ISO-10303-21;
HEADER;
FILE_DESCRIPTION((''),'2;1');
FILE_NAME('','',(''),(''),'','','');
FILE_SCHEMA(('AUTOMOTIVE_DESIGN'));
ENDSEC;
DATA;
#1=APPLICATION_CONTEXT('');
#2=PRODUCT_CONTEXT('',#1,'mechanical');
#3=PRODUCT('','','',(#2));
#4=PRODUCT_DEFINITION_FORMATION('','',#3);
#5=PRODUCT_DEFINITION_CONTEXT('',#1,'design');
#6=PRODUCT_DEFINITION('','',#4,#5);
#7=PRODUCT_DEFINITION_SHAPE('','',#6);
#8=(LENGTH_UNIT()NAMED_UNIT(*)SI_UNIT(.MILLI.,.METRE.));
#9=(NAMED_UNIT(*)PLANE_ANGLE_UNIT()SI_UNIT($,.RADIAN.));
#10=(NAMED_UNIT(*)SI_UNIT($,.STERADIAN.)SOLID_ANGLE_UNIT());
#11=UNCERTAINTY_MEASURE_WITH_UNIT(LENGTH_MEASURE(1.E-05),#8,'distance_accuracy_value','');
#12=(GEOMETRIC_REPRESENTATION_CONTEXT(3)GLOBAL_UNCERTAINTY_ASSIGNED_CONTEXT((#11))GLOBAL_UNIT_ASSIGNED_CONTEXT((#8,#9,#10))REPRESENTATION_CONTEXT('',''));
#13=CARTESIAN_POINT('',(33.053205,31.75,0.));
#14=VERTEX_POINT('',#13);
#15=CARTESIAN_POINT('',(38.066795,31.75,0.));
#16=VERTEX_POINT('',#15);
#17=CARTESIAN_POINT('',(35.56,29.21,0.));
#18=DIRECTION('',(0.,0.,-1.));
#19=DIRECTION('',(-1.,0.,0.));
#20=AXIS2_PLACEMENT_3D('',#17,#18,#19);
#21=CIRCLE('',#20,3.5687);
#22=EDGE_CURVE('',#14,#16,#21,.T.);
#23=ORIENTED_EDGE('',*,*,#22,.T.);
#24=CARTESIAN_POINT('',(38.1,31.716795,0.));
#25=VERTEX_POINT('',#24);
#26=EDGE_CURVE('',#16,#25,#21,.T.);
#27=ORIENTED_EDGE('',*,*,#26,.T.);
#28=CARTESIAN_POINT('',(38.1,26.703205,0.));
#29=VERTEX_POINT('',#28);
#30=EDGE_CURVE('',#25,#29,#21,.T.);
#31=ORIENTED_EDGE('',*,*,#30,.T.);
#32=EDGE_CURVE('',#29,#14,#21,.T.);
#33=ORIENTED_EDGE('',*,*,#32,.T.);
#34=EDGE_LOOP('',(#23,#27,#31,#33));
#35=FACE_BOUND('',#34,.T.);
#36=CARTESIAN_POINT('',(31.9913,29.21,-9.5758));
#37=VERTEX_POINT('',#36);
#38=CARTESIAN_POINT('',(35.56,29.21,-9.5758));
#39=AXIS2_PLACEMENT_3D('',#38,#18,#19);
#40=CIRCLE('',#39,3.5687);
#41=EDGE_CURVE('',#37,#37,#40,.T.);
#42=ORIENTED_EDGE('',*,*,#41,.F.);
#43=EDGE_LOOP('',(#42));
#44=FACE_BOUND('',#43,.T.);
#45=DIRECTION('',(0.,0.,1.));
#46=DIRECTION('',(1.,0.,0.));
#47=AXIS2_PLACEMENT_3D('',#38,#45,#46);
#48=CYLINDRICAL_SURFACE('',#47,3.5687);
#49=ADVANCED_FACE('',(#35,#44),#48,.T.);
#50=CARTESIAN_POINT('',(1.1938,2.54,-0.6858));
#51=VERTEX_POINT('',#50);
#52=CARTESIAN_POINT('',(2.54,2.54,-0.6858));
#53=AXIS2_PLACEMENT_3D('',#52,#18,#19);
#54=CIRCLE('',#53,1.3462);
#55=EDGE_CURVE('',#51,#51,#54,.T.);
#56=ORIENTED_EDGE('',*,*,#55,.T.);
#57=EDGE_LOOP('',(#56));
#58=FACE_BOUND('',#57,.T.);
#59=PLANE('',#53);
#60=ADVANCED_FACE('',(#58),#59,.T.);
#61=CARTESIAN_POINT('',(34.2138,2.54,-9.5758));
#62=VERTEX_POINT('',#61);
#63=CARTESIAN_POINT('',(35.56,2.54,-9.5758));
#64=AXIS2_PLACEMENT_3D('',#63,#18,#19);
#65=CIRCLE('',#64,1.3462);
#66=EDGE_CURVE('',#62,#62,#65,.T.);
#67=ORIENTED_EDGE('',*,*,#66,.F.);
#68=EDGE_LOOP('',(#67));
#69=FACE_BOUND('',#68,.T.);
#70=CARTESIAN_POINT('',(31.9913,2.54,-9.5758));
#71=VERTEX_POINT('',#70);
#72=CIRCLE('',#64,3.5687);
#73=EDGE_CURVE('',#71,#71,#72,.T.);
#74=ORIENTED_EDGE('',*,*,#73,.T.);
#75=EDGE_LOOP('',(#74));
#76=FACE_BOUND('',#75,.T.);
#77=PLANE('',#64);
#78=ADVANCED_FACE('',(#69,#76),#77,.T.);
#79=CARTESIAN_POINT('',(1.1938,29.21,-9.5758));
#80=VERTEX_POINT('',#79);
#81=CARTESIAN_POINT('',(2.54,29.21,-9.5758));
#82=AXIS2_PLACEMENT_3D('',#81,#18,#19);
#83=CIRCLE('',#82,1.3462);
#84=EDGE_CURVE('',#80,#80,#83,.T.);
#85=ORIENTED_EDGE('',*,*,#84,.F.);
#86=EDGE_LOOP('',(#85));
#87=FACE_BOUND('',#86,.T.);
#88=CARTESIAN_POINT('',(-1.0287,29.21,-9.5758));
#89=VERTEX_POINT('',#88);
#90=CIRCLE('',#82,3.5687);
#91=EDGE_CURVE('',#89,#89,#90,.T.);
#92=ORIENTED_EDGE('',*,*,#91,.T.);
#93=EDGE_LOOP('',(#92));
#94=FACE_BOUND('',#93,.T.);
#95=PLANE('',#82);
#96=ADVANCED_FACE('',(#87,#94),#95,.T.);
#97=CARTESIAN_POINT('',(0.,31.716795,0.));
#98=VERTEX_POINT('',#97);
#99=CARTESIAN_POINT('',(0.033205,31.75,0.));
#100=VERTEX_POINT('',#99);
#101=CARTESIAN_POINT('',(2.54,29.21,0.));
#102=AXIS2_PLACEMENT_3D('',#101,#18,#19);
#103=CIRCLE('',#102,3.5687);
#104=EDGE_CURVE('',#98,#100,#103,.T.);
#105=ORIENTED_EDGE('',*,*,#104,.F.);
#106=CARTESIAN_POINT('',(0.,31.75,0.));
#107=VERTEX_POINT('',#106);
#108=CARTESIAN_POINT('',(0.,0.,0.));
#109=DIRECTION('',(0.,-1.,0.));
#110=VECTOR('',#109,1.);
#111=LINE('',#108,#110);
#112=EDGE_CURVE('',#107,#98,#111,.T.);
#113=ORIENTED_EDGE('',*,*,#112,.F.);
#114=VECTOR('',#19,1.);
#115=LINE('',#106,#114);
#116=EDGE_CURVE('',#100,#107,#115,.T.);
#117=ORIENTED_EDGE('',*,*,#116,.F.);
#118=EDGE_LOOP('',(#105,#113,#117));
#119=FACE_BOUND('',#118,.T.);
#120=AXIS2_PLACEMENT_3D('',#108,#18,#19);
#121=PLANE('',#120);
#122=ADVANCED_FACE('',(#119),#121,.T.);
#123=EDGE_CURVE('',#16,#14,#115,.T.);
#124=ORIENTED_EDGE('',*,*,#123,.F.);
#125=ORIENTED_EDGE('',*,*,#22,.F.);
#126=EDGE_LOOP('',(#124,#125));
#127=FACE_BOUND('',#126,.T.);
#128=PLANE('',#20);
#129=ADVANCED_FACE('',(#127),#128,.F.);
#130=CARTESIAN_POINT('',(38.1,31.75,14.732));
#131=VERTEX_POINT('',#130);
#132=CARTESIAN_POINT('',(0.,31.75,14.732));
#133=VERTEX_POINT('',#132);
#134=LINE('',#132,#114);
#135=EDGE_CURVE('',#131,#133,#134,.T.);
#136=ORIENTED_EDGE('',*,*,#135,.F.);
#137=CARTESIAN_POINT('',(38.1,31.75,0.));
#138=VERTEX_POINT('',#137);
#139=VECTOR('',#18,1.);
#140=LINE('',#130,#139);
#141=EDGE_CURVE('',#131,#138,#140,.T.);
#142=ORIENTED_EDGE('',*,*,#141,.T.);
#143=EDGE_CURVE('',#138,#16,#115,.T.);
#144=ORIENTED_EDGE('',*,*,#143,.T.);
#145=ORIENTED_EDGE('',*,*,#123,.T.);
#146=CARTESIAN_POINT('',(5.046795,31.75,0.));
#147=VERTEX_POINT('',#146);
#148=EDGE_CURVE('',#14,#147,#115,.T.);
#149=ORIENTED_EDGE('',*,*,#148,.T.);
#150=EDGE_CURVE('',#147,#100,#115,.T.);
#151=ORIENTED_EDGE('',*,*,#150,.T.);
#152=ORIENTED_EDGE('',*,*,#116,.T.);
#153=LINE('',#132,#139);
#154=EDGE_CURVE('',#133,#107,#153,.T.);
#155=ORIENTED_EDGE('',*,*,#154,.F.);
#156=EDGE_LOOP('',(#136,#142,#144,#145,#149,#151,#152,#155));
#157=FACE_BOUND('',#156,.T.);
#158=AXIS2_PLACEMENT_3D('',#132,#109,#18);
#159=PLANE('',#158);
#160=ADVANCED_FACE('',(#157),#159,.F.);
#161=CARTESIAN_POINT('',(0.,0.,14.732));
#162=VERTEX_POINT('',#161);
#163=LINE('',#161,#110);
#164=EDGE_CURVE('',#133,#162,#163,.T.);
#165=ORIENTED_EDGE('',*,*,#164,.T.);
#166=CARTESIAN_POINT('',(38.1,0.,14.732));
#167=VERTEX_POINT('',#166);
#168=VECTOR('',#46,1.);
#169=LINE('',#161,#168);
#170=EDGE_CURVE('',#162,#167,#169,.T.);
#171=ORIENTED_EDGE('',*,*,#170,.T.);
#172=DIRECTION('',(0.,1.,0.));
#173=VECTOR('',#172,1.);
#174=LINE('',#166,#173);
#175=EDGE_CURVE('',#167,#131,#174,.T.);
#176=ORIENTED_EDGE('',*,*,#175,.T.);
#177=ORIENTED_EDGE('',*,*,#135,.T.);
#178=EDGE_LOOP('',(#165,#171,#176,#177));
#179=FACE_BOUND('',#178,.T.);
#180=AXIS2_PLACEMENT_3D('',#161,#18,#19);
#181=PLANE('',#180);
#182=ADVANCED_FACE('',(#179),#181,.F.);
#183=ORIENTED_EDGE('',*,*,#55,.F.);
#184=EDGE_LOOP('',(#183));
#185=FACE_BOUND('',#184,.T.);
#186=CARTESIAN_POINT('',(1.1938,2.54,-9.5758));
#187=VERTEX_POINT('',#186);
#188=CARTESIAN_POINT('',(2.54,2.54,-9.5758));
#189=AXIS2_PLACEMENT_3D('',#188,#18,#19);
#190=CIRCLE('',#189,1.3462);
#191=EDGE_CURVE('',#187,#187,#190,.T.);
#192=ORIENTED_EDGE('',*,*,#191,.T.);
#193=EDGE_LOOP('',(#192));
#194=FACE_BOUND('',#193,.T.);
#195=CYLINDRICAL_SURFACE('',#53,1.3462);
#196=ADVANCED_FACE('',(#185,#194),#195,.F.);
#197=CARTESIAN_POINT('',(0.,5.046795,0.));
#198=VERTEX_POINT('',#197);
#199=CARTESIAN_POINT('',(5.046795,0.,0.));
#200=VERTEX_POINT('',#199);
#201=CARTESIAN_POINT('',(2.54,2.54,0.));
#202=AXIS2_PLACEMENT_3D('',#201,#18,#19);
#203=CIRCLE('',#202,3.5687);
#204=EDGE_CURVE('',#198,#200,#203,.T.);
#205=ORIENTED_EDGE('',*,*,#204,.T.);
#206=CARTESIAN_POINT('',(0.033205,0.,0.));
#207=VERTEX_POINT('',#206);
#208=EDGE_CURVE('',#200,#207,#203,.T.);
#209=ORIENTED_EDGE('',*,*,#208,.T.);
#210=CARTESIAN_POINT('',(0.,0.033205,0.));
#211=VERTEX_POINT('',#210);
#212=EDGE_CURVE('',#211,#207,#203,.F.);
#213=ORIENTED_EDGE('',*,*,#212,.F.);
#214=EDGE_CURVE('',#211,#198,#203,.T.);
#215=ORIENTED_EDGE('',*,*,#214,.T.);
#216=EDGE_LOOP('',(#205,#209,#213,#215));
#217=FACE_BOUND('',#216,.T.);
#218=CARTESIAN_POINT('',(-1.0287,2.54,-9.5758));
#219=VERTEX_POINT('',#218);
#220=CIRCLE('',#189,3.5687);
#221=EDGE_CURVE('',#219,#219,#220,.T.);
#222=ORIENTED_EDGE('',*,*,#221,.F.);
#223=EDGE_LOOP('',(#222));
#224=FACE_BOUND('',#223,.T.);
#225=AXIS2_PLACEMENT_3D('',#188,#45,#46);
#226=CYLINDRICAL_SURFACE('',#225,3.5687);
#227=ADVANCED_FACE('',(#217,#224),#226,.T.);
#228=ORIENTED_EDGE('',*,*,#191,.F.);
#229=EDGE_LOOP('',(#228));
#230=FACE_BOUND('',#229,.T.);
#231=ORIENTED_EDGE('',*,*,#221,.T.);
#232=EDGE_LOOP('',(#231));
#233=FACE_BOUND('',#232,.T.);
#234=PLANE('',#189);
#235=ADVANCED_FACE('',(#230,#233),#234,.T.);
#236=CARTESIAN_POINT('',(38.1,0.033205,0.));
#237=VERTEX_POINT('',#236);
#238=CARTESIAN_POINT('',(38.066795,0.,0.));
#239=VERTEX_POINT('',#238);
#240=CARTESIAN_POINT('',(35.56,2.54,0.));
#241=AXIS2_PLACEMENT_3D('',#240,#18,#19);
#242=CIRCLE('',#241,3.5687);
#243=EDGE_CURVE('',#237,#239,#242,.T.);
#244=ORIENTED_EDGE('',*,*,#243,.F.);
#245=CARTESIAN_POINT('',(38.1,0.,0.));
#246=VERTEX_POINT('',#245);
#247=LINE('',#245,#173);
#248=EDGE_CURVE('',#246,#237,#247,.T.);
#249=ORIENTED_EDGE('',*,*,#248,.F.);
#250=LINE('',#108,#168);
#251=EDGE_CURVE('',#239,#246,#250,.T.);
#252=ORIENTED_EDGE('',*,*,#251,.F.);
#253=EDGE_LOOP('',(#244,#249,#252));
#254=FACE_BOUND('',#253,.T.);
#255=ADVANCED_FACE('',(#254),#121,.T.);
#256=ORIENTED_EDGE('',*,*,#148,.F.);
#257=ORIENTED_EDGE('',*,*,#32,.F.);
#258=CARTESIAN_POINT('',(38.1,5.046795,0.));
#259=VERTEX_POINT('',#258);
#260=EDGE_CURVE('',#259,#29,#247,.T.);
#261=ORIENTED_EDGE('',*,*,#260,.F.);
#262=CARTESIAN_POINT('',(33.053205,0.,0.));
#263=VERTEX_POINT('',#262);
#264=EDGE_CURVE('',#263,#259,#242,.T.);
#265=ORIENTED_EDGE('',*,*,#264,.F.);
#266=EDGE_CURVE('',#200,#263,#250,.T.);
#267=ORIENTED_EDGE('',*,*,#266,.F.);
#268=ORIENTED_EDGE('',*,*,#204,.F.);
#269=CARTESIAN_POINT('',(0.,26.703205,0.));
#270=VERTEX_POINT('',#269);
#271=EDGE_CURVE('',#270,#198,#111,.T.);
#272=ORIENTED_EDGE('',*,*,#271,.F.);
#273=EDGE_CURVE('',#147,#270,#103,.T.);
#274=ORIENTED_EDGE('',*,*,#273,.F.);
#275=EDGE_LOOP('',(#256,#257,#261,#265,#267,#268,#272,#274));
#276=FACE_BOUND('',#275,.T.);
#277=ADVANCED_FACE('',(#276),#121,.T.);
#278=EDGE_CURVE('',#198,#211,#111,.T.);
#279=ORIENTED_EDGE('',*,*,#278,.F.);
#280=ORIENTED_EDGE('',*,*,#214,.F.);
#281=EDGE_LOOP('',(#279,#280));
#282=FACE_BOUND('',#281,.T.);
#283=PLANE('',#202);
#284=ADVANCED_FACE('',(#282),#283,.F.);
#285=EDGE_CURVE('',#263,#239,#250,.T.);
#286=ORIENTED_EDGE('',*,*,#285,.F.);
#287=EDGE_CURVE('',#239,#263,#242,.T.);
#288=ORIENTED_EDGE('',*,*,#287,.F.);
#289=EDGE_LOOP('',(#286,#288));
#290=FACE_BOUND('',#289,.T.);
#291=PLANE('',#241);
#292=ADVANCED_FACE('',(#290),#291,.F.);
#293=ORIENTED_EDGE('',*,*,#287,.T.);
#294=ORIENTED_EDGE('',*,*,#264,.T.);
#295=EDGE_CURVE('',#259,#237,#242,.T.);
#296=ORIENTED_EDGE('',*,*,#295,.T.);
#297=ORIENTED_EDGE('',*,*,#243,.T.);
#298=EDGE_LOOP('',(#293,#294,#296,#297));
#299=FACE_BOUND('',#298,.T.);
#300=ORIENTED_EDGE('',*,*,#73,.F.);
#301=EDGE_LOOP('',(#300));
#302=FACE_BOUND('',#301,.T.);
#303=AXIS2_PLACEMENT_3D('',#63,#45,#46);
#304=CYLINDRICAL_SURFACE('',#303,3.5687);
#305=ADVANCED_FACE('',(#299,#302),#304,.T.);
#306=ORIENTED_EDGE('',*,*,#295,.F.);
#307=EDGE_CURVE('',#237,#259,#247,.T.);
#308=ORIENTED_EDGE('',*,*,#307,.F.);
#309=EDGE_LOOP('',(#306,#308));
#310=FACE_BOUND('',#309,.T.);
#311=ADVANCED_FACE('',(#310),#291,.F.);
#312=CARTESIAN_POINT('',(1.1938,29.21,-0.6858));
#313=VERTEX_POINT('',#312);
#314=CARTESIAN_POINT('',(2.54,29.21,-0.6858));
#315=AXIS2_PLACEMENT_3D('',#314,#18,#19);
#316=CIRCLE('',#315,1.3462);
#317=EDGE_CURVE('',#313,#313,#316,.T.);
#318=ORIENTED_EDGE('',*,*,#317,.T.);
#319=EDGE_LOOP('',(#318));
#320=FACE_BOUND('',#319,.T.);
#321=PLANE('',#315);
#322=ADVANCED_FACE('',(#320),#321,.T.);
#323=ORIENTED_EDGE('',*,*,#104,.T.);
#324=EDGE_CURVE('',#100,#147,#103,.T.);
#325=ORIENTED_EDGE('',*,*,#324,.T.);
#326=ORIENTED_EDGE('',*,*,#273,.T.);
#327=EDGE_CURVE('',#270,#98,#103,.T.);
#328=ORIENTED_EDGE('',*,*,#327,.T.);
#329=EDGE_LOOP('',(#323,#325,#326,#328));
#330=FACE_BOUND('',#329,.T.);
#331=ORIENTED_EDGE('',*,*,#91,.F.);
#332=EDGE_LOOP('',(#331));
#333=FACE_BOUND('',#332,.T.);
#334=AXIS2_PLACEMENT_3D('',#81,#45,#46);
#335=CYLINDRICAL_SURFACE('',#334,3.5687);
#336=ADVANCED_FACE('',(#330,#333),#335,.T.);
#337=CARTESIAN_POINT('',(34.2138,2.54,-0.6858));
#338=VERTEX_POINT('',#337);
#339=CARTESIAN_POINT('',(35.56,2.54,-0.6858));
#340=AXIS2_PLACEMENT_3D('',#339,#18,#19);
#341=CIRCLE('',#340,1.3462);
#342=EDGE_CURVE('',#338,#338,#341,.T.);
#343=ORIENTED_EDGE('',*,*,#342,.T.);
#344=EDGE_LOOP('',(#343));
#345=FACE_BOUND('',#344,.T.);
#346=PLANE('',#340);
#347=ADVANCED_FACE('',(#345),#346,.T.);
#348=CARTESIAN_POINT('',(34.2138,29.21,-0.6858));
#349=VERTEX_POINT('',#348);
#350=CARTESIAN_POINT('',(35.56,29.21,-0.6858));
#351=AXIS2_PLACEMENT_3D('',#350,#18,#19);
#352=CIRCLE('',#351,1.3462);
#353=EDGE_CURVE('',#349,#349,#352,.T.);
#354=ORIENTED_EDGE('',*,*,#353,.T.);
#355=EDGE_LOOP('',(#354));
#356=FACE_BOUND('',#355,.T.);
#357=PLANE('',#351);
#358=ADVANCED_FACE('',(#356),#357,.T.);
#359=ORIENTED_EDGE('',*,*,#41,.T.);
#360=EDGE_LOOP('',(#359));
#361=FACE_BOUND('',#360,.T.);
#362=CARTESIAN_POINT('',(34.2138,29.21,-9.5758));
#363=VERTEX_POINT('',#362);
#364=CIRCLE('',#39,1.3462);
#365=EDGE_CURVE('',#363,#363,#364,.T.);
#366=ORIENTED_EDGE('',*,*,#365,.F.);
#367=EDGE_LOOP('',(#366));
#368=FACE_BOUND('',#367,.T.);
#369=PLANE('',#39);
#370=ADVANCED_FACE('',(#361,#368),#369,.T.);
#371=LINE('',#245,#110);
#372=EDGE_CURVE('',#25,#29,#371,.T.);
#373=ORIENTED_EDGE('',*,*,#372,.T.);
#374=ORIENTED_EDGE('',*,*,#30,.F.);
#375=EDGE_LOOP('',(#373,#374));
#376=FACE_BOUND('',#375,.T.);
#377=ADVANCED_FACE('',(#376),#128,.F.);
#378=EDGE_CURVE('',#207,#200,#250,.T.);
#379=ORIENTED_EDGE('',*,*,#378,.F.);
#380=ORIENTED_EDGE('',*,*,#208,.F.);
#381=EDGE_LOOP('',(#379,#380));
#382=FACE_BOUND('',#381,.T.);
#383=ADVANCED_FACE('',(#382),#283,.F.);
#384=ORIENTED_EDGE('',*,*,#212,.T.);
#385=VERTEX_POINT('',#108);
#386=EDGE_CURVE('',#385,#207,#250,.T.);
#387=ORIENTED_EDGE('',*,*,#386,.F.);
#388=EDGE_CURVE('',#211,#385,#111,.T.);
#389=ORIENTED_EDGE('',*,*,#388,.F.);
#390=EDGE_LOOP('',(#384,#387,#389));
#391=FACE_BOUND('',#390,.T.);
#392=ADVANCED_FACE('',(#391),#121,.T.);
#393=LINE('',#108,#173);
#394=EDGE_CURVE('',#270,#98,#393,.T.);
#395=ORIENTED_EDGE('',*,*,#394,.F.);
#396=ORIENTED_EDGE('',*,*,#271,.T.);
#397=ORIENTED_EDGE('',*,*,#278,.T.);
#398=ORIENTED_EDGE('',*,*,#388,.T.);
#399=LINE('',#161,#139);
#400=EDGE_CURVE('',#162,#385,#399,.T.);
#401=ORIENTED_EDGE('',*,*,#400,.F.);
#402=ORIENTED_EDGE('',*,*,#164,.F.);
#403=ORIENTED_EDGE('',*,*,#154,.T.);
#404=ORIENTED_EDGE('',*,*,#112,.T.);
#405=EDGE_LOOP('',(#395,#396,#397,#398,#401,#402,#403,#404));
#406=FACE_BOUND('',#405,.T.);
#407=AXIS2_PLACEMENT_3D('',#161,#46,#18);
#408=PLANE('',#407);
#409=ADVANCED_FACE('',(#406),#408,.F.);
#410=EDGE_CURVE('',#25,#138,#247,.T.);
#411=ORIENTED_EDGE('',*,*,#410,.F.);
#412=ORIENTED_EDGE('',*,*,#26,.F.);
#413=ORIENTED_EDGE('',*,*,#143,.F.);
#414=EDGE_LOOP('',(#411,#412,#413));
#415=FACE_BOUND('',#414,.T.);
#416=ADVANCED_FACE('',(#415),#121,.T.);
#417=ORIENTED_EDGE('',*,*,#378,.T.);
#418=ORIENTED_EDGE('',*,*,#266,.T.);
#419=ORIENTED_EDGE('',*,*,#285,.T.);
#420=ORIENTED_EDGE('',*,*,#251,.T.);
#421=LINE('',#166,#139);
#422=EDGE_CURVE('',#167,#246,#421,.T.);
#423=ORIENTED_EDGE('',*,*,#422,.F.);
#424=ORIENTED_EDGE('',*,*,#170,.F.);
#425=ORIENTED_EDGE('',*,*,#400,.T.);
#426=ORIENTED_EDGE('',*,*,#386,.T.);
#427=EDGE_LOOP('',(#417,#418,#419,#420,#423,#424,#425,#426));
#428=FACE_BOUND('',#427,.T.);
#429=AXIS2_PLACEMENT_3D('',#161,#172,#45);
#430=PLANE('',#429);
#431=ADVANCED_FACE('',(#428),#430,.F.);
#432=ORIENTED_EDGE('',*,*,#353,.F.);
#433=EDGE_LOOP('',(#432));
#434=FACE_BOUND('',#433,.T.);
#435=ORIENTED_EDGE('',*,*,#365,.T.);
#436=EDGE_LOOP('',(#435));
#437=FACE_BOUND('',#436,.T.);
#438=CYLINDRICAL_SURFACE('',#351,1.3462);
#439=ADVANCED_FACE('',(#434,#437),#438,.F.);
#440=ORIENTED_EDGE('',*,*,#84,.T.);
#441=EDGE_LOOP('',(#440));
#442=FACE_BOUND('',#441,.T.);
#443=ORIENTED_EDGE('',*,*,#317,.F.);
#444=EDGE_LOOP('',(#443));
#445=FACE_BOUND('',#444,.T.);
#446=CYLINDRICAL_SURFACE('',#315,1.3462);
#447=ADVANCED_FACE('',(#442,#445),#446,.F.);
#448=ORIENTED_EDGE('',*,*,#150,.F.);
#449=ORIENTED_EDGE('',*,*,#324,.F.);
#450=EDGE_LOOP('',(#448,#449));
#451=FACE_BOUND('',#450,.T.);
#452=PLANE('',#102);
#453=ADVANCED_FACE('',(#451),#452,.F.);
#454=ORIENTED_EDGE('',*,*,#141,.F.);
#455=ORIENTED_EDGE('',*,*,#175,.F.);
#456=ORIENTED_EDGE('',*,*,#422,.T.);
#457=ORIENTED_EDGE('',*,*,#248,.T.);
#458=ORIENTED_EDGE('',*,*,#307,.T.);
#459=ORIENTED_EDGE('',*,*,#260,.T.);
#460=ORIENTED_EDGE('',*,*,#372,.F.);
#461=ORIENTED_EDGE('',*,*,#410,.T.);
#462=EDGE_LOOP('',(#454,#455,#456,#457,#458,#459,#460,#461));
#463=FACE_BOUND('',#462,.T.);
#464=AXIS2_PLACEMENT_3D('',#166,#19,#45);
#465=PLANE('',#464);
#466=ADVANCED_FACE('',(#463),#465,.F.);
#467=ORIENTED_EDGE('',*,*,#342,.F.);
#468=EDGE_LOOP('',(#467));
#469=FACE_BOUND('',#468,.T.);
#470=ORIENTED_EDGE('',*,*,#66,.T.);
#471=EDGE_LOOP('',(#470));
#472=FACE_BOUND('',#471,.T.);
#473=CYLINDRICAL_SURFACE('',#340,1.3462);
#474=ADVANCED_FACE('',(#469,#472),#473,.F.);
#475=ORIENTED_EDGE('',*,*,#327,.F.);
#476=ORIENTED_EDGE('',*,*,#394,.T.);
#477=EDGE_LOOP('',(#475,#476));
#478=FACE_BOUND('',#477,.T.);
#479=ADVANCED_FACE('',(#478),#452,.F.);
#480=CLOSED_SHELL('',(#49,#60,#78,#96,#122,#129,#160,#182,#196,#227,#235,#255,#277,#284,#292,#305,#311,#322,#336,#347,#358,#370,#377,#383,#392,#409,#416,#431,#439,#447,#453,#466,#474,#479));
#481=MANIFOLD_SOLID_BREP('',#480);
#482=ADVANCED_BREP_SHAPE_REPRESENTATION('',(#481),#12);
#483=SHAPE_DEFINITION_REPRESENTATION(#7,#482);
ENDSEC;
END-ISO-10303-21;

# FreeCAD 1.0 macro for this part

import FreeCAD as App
import Part
import Sketcher

V = App.Vector
Q = App.Units.Quantity


def add_polygon(sketch, points):
    """Adds a closed chain of lines whose ends are joined by coincident constraints."""
    first, n = sketch.GeometryCount, len(points)
    for a, b in zip(points, points[1:] + points[:1]):
        sketch.addGeometry(Part.LineSegment(App.Vector(*a, 0), App.Vector(*b, 0)), False)
    for i in range(n):
        sketch.addConstraint(Sketcher.Constraint("Coincident", first + i, 2, first + (i + 1) % n, 1))

doc = App.newDocument("Part")
body = doc.addObject("PartDesign::Body", "Body")

# Sketch on XY plane
sketch1 = body.newObject("Sketcher::SketchObject", "Sketch")
sketch1.AttachmentSupport = (doc.getObject("XY_Plane"), [""])
sketch1.MapMode = "FlatFace"
add_polygon(sketch1, [(0, 32), (0, 0), (38, 0), (38, 32)])  # lines 0-3
sketch1.addConstraint([
    Sketcher.Constraint("Vertical", 0),
    Sketcher.Constraint("Horizontal", 1),
    Sketcher.Constraint("Vertical", 2),
    Sketcher.Constraint("Horizontal", 3),
    Sketcher.Constraint("Coincident", 0, 2, -1, 1),
    Sketcher.Constraint("DistanceX", 1, 1, 1, 2, Q("1.5 in")),
    Sketcher.Constraint("DistanceY", 0, 2, 0, 1, Q("1.25 in")),
])
pad1 = body.newObject("PartDesign::Pad", "Pad")
pad1.Profile = sketch1
pad1.Length = Q("0.58 in")

# Sketch on XY plane
sketch2 = body.newObject("Sketcher::SketchObject", "Sketch001")
sketch2.AttachmentSupport = (doc.getObject("XY_Plane"), [""])
sketch2.MapMode = "FlatFace"
sketch2.addGeometry([
    Part.Circle(V(35.6, 2.5, 0), V(0, 0, 1), 3.6),
    Part.Circle(V(2.5, 2.5, 0), V(0, 0, 1), 3.6),
    Part.Circle(V(35.6, 29.2, 0), V(0, 0, 1), 3.6),
    Part.Circle(V(2.5, 29.2, 0), V(0, 0, 1), 3.6),
], False)
sketch2.addConstraint([
    Sketcher.Constraint("Equal", 0, 1),
    Sketcher.Constraint("Equal", 1, 2),
    Sketcher.Constraint("Equal", 2, 3),
    Sketcher.Constraint("Horizontal", 0, 3, 1, 3),
    Sketcher.Constraint("Horizontal", 2, 3, 3, 3),
    Sketcher.Constraint("Vertical", 0, 3, 2, 3),
    Sketcher.Constraint("Vertical", 1, 3, 3, 3),
    Sketcher.Constraint("Diameter", 0, Q("0.281 in")),
    Sketcher.Constraint("DistanceX", -1, 1, 0, 3, Q("1.4 in")),
    Sketcher.Constraint("DistanceY", -1, 1, 0, 3, Q("0.1 in")),
    Sketcher.Constraint("DistanceX", -1, 1, 1, 3, Q("0.1 in")),
    Sketcher.Constraint("DistanceY", -1, 1, 2, 3, Q("1.15 in")),
])
pad2 = body.newObject("PartDesign::Pad", "Pad001")
pad2.Profile = sketch2
pad2.Length = Q("0.377 in")
pad2.Reversed = True

# Sketch on XY plane
sketch3 = body.newObject("Sketcher::SketchObject", "Sketch002")
sketch3.AttachmentSupport = (doc.getObject("XY_Plane"), [""])
sketch3.MapMode = "FlatFace"
sketch3.AttachmentOffset = App.Placement(V(0, 0, -0.377 * 25.4), App.Rotation())
sketch3.addGeometry([
    Part.Circle(V(35.6, 29.2, 0), V(0, 0, 1), 1.3),
    Part.Circle(V(2.5, 29.2, 0), V(0, 0, 1), 1.3),
    Part.Circle(V(2.5, 2.5, 0), V(0, 0, 1), 1.3),
    Part.Circle(V(35.6, 2.5, 0), V(0, 0, 1), 1.3),
], False)
sketch3.addConstraint([
    Sketcher.Constraint("Equal", 0, 1),
    Sketcher.Constraint("Equal", 1, 2),
    Sketcher.Constraint("Equal", 2, 3),
    Sketcher.Constraint("Horizontal", 0, 3, 1, 3),
    Sketcher.Constraint("Horizontal", 2, 3, 3, 3),
    Sketcher.Constraint("Vertical", 1, 3, 2, 3),
    Sketcher.Constraint("Vertical", 0, 3, 3, 3),
    Sketcher.Constraint("Diameter", 0, Q("0.106 in")),
    Sketcher.Constraint("DistanceX", -1, 1, 0, 3, Q("1.4 in")),
    Sketcher.Constraint("DistanceX", -1, 1, 1, 3, Q("0.1 in")),
    Sketcher.Constraint("DistanceY", -1, 1, 2, 3, Q("0.1 in")),
    Sketcher.Constraint("DistanceY", -1, 1, 0, 3, Q("1.15 in")),
])
pocket1 = body.newObject("PartDesign::Pocket", "Pocket")
pocket1.Profile = sketch3
pocket1.Length = Q("0.35 in")
pocket1.Reversed = True

doc.recompute()
